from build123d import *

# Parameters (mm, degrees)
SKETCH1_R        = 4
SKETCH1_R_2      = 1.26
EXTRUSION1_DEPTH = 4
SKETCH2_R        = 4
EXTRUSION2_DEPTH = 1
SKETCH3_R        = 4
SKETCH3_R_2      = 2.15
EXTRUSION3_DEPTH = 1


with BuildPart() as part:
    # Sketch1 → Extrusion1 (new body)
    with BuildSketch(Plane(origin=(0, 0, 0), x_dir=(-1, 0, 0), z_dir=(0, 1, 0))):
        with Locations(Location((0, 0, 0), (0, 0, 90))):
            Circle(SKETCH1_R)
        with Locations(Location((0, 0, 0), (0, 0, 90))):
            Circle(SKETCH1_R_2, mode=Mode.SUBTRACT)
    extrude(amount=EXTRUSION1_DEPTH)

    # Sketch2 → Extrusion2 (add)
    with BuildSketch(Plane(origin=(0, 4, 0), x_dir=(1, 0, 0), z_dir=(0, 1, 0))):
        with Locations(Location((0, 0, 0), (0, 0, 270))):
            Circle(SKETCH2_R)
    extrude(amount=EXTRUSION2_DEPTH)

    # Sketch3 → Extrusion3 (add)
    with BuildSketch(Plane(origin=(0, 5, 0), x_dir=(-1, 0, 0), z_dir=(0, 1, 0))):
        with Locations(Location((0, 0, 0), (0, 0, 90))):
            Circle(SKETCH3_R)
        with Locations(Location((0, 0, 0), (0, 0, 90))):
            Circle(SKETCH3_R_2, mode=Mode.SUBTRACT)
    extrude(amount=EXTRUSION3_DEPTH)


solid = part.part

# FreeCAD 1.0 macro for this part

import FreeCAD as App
import Part
import Sketcher

V = App.Vector

doc = App.newDocument("Part")
params = doc.addObject("Spreadsheet::Sheet", "Params")
for row, (alias, value) in enumerate([
    ("sketch1_diameter", "8 mm"),
    ("sketch1_diameter2", "2.52 mm"),
    ("pad1_length", "4 mm"),
    ("sketch2_diameter", "8 mm"),
    ("pad2_length", "1 mm"),
    ("sketch3_diameter", "8 mm"),
    ("sketch3_diameter2", "4.3 mm"),
    ("pad3_length", "1 mm"),
], start=1):
    params.set(f"A{row}", alias)
    params.set(f"B{row}", "=" + value)
    params.setAlias(f"B{row}", alias)

body = doc.addObject("PartDesign::Body", "Body")

# Sketch on XZ plane
sketch1 = body.newObject("Sketcher::SketchObject", "Sketch")
sketch1.AttachmentSupport = (doc.getObject("XZ_Plane"), [""])
sketch1.MapMode = "FlatFace"
sketch1.addGeometry(Part.Circle(V(0, 0, 0), V(0, 0, 1), 4), False)
sketch1.addGeometry(Part.Circle(V(0, 0, 0), V(0, 0, 1), 1.3), False)
sketch1.addConstraint(Sketcher.Constraint("Coincident", 0, 3, -1, 1))
sketch1.addConstraint(Sketcher.Constraint("Coincident", 1, 3, -1, 1))
sketch1.addConstraint(Sketcher.Constraint("Diameter", 0, 8.0))
sketch1.addConstraint(Sketcher.Constraint("Diameter", 1, 2.52))
sketch1.setExpression("Constraints[2]", "Params.sketch1_diameter")
sketch1.setExpression("Constraints[3]", "Params.sketch1_diameter2")
pad1 = body.newObject("PartDesign::Pad", "Pad")
pad1.Profile = sketch1
pad1.setExpression("Length", "Params.pad1_length")
pad1.Reversed = True

# Sketch on XZ plane
sketch2 = body.newObject("Sketcher::SketchObject", "Sketch001")
sketch2.AttachmentSupport = (doc.getObject("XZ_Plane"), [""])
sketch2.MapMode = "FlatFace"
sketch2.AttachmentOffset = App.Placement(V(0, 0, -4), App.Rotation())
sketch2.addGeometry(Part.Circle(V(0, 0, 0), V(0, 0, 1), 4), False)
sketch2.addConstraint(Sketcher.Constraint("Coincident", 0, 3, -1, 1))
sketch2.addConstraint(Sketcher.Constraint("Diameter", 0, 8.0))
sketch2.setExpression("Constraints[1]", "Params.sketch2_diameter")
pad2 = body.newObject("PartDesign::Pad", "Pad001")
pad2.Profile = sketch2
pad2.setExpression("Length", "Params.pad2_length")
pad2.Reversed = True

# Sketch on XZ plane
sketch3 = body.newObject("Sketcher::SketchObject", "Sketch002")
sketch3.AttachmentSupport = (doc.getObject("XZ_Plane"), [""])
sketch3.MapMode = "FlatFace"
sketch3.AttachmentOffset = App.Placement(V(0, 0, -5), App.Rotation())
sketch3.addGeometry(Part.Circle(V(0, 0, 0), V(0, 0, 1), 4), False)
sketch3.addGeometry(Part.Circle(V(0, 0, 0), V(0, 0, 1), 2.1), False)
sketch3.addConstraint(Sketcher.Constraint("Coincident", 0, 3, -1, 1))
sketch3.addConstraint(Sketcher.Constraint("Coincident", 1, 3, -1, 1))
sketch3.addConstraint(Sketcher.Constraint("Diameter", 0, 8.0))
sketch3.addConstraint(Sketcher.Constraint("Diameter", 1, 4.3))
sketch3.setExpression("Constraints[2]", "Params.sketch3_diameter")
sketch3.setExpression("Constraints[3]", "Params.sketch3_diameter2")
pad3 = body.newObject("PartDesign::Pad", "Pad002")
pad3.Profile = sketch3
pad3.setExpression("Length", "Params.pad3_length")
pad3.Reversed = True

doc.recompute()
